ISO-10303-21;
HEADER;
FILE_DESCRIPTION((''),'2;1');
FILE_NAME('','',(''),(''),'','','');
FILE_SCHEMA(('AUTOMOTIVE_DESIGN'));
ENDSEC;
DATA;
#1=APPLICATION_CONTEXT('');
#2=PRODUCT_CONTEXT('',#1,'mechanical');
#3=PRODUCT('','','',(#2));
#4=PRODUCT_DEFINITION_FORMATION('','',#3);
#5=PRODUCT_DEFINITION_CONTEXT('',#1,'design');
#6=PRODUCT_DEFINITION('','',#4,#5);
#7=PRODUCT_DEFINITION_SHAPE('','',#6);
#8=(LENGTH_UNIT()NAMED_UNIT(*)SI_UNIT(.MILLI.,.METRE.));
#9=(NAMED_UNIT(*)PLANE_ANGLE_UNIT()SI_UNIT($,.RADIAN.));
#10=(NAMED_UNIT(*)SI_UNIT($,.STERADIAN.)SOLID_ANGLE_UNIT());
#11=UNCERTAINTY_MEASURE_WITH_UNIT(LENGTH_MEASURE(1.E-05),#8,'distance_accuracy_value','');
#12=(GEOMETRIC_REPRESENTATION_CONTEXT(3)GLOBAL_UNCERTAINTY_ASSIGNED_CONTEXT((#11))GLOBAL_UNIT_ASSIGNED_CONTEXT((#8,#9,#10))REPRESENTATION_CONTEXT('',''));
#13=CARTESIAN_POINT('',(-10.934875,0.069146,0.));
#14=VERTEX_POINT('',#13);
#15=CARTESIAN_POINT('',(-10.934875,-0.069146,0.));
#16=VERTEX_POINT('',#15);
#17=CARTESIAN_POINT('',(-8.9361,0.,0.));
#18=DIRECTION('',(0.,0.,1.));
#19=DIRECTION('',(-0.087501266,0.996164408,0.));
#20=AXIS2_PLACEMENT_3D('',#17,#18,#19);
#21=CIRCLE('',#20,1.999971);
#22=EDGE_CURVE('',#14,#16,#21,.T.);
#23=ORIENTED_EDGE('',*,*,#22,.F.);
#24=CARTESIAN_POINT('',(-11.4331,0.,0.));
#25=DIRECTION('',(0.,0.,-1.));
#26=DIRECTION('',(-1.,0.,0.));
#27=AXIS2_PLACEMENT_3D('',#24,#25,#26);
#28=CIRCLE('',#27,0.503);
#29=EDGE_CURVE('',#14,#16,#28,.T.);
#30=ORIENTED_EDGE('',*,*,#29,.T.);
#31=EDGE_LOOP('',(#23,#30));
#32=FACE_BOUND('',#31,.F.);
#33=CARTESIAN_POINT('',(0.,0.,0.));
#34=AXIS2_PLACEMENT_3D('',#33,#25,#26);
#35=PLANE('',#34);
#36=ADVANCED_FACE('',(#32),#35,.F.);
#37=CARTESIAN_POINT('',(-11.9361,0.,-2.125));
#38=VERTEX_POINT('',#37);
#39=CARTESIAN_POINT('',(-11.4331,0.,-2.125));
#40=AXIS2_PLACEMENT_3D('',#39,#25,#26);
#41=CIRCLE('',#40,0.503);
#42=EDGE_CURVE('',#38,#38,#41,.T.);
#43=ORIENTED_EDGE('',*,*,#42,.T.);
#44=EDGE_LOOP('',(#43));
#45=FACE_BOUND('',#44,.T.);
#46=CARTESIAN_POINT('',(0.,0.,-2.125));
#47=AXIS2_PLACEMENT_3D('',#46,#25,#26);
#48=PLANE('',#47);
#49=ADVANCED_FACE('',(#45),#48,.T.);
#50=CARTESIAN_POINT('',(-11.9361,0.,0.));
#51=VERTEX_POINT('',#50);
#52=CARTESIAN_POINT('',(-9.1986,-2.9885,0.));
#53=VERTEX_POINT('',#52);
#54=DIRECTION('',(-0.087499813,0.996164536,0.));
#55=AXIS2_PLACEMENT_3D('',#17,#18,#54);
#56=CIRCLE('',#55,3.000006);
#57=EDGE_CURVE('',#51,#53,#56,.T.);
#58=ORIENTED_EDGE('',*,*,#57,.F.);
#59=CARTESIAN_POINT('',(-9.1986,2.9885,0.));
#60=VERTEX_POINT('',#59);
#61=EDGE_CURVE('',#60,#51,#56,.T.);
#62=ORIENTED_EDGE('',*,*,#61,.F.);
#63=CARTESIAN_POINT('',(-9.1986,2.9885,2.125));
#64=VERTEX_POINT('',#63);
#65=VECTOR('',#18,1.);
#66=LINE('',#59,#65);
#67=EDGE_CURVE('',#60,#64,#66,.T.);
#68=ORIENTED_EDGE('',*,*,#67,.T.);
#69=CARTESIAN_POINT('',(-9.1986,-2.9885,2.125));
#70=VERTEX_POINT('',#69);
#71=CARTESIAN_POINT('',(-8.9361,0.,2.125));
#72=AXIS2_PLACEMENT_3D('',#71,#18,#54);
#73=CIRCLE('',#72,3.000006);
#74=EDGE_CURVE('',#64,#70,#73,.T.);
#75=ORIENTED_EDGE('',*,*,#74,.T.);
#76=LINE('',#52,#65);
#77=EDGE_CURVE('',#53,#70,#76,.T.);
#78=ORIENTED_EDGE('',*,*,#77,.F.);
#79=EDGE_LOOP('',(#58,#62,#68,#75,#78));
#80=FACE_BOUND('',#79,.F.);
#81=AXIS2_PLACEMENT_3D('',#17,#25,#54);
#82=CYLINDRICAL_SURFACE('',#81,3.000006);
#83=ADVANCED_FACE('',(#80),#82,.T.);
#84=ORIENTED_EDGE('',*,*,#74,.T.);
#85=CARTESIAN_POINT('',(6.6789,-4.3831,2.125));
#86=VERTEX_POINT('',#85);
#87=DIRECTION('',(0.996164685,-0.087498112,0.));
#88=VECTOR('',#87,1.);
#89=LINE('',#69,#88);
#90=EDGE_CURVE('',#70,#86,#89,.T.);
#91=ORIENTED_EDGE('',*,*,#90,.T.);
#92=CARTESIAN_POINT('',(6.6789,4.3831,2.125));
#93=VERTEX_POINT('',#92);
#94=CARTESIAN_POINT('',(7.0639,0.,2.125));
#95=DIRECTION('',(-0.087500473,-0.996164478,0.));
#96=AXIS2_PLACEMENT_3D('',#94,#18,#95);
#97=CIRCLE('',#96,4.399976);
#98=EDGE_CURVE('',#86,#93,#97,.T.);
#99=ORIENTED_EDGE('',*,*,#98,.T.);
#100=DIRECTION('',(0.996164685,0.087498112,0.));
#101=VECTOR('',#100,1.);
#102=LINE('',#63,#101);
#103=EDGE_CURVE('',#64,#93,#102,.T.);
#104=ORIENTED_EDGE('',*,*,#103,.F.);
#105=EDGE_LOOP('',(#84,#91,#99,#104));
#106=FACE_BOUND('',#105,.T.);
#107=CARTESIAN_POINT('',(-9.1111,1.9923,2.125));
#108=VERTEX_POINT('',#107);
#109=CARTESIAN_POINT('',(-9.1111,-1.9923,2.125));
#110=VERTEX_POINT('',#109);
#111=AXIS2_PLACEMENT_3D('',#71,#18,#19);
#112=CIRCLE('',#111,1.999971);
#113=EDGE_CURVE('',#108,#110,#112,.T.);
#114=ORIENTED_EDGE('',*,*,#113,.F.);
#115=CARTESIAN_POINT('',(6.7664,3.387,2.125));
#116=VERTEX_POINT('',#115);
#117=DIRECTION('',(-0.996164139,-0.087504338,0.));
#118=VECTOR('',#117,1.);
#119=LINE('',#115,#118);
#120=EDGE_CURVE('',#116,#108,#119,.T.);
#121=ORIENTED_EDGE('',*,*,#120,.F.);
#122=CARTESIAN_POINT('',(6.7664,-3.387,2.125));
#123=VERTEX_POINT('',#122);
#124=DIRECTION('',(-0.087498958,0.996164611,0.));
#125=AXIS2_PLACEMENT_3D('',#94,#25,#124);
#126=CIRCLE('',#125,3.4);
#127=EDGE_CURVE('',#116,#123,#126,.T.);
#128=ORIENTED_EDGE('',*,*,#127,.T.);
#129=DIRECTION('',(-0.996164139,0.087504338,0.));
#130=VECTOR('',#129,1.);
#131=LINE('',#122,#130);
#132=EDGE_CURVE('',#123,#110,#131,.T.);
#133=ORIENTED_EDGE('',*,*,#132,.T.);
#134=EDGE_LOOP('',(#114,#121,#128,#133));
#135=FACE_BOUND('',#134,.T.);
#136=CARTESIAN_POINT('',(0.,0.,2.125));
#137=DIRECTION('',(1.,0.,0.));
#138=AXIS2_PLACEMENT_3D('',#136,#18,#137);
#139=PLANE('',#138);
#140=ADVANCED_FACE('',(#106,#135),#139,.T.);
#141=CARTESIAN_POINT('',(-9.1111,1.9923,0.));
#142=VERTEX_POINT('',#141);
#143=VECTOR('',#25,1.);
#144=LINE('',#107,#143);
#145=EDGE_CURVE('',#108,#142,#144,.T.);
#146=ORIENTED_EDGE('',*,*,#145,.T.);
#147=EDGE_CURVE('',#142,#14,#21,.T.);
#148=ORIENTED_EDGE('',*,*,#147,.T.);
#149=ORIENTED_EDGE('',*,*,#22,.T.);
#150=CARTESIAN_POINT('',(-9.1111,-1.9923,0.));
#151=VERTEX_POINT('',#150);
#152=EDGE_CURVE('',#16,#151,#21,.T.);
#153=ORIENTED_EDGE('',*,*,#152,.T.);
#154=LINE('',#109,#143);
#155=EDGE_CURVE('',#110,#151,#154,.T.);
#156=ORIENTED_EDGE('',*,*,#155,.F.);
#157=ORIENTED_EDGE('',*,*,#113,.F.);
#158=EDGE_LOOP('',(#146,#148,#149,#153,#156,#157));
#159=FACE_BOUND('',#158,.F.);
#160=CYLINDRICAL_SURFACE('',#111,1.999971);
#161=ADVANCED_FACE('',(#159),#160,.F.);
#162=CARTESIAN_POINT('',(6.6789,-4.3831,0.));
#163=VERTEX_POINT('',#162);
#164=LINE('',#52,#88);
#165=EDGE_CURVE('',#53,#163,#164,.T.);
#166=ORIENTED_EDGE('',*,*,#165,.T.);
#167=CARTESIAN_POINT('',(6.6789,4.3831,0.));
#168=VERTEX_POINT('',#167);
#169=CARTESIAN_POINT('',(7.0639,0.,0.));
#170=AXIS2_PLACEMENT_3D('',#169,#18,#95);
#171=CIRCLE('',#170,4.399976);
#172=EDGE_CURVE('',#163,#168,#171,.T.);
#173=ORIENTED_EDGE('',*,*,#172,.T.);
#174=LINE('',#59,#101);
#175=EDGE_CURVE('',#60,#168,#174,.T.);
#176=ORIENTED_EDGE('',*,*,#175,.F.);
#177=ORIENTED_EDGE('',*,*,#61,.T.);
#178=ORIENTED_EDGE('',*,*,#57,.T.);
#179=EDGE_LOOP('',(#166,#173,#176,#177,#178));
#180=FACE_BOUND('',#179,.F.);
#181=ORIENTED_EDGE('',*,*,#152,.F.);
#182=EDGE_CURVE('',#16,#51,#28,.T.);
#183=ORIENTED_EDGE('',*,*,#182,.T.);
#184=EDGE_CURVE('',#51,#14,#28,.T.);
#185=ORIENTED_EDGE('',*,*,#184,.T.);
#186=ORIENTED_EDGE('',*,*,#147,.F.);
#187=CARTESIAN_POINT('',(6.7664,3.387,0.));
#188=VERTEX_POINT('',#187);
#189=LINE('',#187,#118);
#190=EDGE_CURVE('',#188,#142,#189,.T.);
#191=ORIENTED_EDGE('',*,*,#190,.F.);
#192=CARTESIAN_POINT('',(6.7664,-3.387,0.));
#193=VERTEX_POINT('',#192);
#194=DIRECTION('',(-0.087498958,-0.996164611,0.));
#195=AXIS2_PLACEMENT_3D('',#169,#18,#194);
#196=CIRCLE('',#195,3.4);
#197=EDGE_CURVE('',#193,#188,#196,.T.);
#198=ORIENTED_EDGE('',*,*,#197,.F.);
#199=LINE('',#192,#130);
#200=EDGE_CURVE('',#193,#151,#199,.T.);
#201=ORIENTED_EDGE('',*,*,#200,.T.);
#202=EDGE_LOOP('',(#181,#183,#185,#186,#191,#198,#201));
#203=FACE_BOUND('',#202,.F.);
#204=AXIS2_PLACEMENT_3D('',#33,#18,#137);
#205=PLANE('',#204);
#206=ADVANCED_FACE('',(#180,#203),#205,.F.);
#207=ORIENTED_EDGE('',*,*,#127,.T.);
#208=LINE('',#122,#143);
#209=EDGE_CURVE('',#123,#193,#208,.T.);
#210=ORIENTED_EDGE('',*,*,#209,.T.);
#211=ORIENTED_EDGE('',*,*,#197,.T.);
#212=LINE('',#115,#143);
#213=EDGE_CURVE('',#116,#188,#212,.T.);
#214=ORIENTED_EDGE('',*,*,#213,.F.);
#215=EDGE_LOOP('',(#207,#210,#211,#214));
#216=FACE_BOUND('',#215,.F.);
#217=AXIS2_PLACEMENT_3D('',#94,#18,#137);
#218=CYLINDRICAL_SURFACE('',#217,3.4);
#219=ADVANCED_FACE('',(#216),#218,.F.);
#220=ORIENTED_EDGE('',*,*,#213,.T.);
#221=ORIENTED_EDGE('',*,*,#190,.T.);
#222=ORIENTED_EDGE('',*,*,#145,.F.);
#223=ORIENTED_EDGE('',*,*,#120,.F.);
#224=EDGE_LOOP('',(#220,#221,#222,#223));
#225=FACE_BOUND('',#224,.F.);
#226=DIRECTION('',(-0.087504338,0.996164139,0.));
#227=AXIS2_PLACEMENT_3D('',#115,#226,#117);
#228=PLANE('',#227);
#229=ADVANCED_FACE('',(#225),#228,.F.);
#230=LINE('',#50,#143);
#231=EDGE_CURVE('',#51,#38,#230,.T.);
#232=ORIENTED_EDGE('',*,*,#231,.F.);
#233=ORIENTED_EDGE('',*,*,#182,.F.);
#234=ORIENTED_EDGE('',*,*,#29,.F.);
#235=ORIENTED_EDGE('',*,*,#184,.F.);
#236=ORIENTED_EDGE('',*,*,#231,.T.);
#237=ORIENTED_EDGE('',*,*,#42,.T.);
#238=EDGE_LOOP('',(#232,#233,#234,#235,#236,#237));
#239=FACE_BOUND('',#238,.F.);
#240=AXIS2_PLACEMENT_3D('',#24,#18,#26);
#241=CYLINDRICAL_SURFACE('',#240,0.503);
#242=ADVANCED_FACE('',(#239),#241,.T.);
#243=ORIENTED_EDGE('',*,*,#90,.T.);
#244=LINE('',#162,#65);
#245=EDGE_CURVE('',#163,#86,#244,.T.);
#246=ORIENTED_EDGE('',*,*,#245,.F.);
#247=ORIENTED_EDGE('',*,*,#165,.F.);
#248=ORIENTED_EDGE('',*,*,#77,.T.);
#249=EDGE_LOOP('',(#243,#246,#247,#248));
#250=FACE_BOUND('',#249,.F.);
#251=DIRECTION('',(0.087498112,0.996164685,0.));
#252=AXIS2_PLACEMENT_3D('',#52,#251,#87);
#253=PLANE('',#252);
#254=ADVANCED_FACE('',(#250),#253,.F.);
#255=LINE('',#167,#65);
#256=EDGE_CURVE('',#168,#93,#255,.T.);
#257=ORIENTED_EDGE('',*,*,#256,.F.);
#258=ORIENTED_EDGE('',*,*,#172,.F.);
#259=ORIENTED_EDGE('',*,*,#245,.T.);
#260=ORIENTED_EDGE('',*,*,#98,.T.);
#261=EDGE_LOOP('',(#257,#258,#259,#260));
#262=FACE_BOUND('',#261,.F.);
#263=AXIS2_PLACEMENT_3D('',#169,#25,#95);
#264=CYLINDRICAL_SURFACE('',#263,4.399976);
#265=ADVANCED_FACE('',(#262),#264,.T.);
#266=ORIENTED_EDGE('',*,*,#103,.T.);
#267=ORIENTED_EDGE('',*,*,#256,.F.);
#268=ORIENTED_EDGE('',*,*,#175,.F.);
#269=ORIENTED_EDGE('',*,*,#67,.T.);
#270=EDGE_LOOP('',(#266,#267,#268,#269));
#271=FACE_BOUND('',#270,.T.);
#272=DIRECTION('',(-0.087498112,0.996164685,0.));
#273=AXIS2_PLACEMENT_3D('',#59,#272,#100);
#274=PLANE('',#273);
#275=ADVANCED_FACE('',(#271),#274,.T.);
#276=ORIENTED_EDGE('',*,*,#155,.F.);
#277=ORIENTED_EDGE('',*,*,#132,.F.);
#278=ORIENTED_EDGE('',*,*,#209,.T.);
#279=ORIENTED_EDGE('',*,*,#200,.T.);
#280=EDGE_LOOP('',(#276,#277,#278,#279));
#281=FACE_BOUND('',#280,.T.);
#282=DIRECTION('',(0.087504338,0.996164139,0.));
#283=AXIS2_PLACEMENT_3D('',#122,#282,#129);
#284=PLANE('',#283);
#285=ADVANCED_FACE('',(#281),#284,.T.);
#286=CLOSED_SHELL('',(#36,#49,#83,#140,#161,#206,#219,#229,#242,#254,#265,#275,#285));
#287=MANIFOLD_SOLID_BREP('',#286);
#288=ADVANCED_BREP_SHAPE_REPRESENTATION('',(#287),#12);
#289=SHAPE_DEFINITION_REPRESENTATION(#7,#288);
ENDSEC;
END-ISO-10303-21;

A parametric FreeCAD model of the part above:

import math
import FreeCAD as App
import Part
import Sketcher
from FreeCAD import Vector

doc = App.newDocument("Part")
body = doc.addObject("PartDesign::Body", "Body")

# Sketch on XY plane
sketch1 = doc.addObject("Sketcher::SketchObject", "Sketch")
body.addObject(sketch1)
sketch1.AttachmentSupport = (doc.XY_Plane, [""])
sketch1.MapMode = "FlatFace"
sketch1.addGeometry(Part.LineSegment(Vector(-9.2, -3, 0), Vector(6.7, -4.4, 0)), False)
sketch1.addGeometry(Part.ArcOfCircle(Part.Circle(Vector(7.1, 0, 0), Vector(0, 0, 1), 4.4), math.radians(-95), math.radians(95)), False)
sketch1.addGeometry(Part.LineSegment(Vector(6.7, 4.4, 0), Vector(-9.2, 3, 0)), False)
sketch1.addGeometry(Part.ArcOfCircle(Part.Circle(Vector(-8.9, 0, 0), Vector(0, 0, 1), 3), math.radians(95), math.radians(265)), False)
sketch1.addConstraint(Sketcher.Constraint("Tangent", 0, 2, 1, 1))
sketch1.addConstraint(Sketcher.Constraint("Tangent", 1, 2, 2, 1))
sketch1.addConstraint(Sketcher.Constraint("Tangent", 2, 2, 3, 1))
sketch1.addConstraint(Sketcher.Constraint("Tangent", 3, 2, 0, 1))
sketch1.addConstraint(Sketcher.Constraint("Symmetric", 0, 2, 1, 2, -1))
sketch1.addConstraint(Sketcher.Constraint("Radius", 3, 3.0))
sketch1.addConstraint(Sketcher.Constraint("Radius", 1, 4.4))
sketch1.addConstraint(Sketcher.Constraint("DistanceX", 3, 3, 1, 3, 16.0))
sketch1.addConstraint(Sketcher.Constraint("DistanceX", -1, 1, 1, 3, 7.064))
pad1 = doc.addObject("PartDesign::Pad", "Pad")
body.addObject(pad1)
pad1.Profile = sketch1
pad1.Length = 2.125

# Sketch on XY plane
sketch2 = doc.addObject("Sketcher::SketchObject", "Sketch001")
body.addObject(sketch2)
sketch2.AttachmentSupport = (doc.XY_Plane, [""])
sketch2.MapMode = "FlatFace"
sketch2.AttachmentOffset = App.Placement(Vector(0, 0, 2.125), App.Rotation())
sketch2.addGeometry(Part.ArcOfCircle(Part.Circle(Vector(7.1, 0, 0), Vector(0, 0, 1), 3.4), math.radians(-95), math.radians(95)), False)
sketch2.addGeometry(Part.LineSegment(Vector(6.8, 3.4, 0), Vector(-9.1, 2, 0)), False)
sketch2.addGeometry(Part.ArcOfCircle(Part.Circle(Vector(-8.9, 0, 0), Vector(0, 0, 1), 2), math.radians(95), math.radians(265)), False)
sketch2.addGeometry(Part.LineSegment(Vector(-9.1, -2, 0), Vector(6.8, -3.4, 0)), False)
sketch2.addConstraint(Sketcher.Constraint("Tangent", 0, 2, 1, 1))
sketch2.addConstraint(Sketcher.Constraint("Tangent", 1, 2, 2, 1))
sketch2.addConstraint(Sketcher.Constraint("Tangent", 2, 2, 3, 1))
sketch2.addConstraint(Sketcher.Constraint("Tangent", 3, 2, 0, 1))
sketch2.addConstraint(Sketcher.Constraint("Symmetric", 1, 2, 2, 2, -1))
sketch2.addConstraint(Sketcher.Constraint("Radius", 2, 2.0))
sketch2.addConstraint(Sketcher.Constraint("Radius", 0, 3.4))
sketch2.addConstraint(Sketcher.Constraint("DistanceX", 2, 3, 0, 3, 16.0))
sketch2.addConstraint(Sketcher.Constraint("DistanceX", -1, 1, 0, 3, 7.064))
pocket1 = doc.addObject("PartDesign::Pocket", "Pocket")
body.addObject(pocket1)
pocket1.Profile = sketch2
pocket1.Length = 2.125

# Sketch on XY plane
sketch3 = doc.addObject("Sketcher::SketchObject", "Sketch002")
body.addObject(sketch3)
sketch3.AttachmentSupport = (doc.XY_Plane, [""])
sketch3.MapMode = "FlatFace"
sketch3.addGeometry(Part.Circle(Vector(-11.4, 0, 0), Vector(0, 0, 1), 0.5), False)
sketch3.addConstraint(Sketcher.Constraint("PointOnObject", 0, 3, -1))
sketch3.addConstraint(Sketcher.Constraint("Diameter", 0, 1.006))
sketch3.addConstraint(Sketcher.Constraint("DistanceX", 0, 3, -1, 1, 11.433))
pad2 = doc.addObject("PartDesign::Pad", "Pad001")
body.addObject(pad2)
pad2.Profile = sketch3
pad2.Length = 2.125
pad2.Reversed = True

doc.recompute()
